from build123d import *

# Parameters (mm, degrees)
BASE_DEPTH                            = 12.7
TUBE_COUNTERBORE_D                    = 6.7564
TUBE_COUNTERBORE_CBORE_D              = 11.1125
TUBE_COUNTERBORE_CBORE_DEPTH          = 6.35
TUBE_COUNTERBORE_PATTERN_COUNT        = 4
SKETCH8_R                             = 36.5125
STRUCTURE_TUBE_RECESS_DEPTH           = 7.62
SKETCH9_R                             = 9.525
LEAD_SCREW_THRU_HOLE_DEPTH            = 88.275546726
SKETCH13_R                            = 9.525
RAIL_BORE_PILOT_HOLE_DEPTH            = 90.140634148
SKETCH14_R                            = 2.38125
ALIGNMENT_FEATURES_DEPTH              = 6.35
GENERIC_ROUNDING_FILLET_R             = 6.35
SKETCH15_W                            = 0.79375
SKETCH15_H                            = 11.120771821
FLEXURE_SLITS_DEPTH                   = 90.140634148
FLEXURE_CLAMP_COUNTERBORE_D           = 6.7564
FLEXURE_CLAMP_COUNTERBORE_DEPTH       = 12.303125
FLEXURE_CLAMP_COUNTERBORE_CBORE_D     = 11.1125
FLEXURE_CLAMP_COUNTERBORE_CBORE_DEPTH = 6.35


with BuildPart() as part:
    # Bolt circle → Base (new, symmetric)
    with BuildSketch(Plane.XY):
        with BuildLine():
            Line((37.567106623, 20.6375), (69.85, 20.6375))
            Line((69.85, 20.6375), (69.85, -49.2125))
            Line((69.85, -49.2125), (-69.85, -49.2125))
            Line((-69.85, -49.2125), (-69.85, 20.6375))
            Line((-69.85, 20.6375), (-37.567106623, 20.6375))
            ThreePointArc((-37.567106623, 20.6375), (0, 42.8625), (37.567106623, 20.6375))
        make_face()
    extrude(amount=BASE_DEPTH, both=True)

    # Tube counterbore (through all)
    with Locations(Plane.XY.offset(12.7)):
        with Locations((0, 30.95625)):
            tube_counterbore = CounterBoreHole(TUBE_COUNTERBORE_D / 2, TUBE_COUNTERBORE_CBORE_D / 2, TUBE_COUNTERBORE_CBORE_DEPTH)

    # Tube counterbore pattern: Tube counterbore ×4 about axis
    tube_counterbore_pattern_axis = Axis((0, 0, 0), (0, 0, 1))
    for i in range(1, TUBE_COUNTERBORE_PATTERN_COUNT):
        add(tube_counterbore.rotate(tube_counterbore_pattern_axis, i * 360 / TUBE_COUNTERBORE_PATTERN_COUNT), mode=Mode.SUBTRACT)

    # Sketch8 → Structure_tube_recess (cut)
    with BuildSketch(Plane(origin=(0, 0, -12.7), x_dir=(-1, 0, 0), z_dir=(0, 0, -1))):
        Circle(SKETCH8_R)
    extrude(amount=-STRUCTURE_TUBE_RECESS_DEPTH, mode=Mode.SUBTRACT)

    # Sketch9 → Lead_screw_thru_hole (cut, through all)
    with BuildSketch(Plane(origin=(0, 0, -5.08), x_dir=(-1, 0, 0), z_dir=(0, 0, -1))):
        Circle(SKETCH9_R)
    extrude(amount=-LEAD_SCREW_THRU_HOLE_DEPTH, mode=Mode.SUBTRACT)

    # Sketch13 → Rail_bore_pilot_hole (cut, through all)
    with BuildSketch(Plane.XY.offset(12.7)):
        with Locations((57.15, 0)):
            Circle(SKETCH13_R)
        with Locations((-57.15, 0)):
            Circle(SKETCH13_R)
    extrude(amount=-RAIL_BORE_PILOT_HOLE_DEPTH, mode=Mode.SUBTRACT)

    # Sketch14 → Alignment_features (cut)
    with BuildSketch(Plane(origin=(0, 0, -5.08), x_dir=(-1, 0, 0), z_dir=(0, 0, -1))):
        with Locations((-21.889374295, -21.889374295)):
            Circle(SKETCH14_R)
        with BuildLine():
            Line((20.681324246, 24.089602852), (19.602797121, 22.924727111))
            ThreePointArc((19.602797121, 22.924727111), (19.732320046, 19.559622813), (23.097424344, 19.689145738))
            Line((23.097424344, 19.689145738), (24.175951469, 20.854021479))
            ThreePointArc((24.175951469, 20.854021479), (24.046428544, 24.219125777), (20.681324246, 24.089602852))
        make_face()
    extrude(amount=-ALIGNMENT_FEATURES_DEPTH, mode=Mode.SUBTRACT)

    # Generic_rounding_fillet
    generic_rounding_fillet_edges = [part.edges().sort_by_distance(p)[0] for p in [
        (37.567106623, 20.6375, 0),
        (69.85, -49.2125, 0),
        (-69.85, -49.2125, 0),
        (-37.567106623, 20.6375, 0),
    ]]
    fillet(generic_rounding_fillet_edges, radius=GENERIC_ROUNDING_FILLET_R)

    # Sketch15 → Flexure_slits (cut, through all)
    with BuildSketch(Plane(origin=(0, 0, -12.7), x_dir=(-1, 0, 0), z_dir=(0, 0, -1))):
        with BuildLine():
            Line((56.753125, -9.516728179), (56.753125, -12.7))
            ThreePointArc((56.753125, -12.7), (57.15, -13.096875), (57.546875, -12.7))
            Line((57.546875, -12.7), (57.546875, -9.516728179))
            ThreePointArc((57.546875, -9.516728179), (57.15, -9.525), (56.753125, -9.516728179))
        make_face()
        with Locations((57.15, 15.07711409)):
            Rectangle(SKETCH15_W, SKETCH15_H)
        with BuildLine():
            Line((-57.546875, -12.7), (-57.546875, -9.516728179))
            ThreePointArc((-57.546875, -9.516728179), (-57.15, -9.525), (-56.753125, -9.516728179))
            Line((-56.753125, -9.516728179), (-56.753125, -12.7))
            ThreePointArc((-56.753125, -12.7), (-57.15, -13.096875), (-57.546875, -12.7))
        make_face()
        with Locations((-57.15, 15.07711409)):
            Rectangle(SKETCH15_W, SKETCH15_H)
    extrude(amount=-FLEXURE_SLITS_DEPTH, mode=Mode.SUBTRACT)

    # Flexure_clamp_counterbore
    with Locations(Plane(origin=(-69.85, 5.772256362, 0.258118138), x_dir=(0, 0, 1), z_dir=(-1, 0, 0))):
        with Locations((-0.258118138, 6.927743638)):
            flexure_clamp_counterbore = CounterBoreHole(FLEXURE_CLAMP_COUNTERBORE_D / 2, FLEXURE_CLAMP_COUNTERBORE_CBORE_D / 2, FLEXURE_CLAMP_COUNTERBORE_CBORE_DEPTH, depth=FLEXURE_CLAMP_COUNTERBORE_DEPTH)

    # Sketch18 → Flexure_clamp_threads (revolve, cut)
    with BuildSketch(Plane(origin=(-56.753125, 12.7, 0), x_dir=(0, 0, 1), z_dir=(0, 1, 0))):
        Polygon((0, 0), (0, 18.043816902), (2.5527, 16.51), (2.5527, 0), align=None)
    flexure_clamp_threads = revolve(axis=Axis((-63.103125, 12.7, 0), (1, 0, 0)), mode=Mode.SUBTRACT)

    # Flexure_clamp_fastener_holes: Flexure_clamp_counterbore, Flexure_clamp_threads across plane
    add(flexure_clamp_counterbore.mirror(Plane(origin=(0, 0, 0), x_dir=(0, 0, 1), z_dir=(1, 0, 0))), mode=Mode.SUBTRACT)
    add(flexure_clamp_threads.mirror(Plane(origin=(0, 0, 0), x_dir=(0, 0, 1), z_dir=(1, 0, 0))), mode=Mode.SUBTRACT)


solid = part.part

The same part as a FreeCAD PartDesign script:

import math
import FreeCAD as App
import Part
import Sketcher
Q = App.Units.Quantity


def edges_at(feature, points):
    """Names of the edges that pass closest to the given points."""
    edges = feature.Shape.Edges
    near = lambda p: min(range(len(edges)), key=lambda i: edges[i].distToShape(Part.Vertex(*p))[0])
    return sorted({f"Edge{near(p) + 1}" for p in points})

doc = App.newDocument("Part")
params = doc.addObject("Spreadsheet::Sheet", "Params")
for row, (alias, value) in enumerate([
    ("sketch1_width", "5.5 in"),
    ("sketch1_radius", "1.6875 in"),
    ("sketch1_height", "2.75 in"),
    ("pad1_length", "1 in"),
    ("sketch2_diameter", "0.266 in"),
    ("hole_diameter", "0.266 in"),
    ("hole_cbore_diameter", "0.4375 in"),
    ("hole_cbore_depth", "0.25 in"),
    ("sketch3_diameter", "2.875 in"),
    ("pocket1_length", "0.3 in"),
    ("sketch4_diameter", "0.75 in"),
    ("sketch5_diameter", "0.75 in"),
    ("sketch6_diameter", "0.1875 in"),
    ("sketch6_length", "0.0625 in"),
    ("pocket4_length", "0.25 in"),
    ("fillet_radius", "0.25 in"),
    ("sketch7_radius", "0.015625 in"),
    ("sketch7_radius2", "0.375 in"),
    ("sketch8_diameter", "0.266 in"),
    ("hole2_diameter", "0.266 in"),
    ("hole2_depth", "0.484375 in"),
    ("hole2_cbore_diameter", "0.4375 in"),
    ("hole2_cbore_depth", "0.25 in"),
    ("sketch9_width", "0.65 in"),
    ("groove_angle", "360 deg"),
], start=1):
    params.set(f"A{row}", alias)
    params.set(f"B{row}", "=" + value)
    params.setAlias(f"B{row}", alias)

body = doc.addObject("PartDesign::Body", "Body")

# Sketch on XY plane
sketch1 = body.newObject("Sketcher::SketchObject", "Sketch")
sketch1.AttachmentSupport = (doc.getObject("XY_Plane"), [""])
sketch1.MapMode = "FlatFace"
sketch1.addGeometry([
    Part.LineSegment(App.Vector(70, 21, 0), App.Vector(38, 21, 0)),  # 0
    Part.ArcOfCircle(Part.Circle(App.Vector(0, 0, 0), App.Vector(0, 0, 1), 43), math.radians(29), math.radians(151)),  # 1
    Part.LineSegment(App.Vector(-38, 21, 0), App.Vector(-70, 21, 0)),  # 2
    Part.LineSegment(App.Vector(-70, 21, 0), App.Vector(-70, -49, 0)),  # 3
    Part.LineSegment(App.Vector(-70, -49, 0), App.Vector(70, -49, 0)),  # 4
    Part.LineSegment(App.Vector(70, -49, 0), App.Vector(70, 21, 0)),  # 5
], False)
sketch1.addConstraint([
    Sketcher.Constraint("Coincident", 0, 2, 1, 1),
    Sketcher.Constraint("Coincident", 1, 2, 2, 1),
    Sketcher.Constraint("Coincident", 2, 2, 3, 1),
    Sketcher.Constraint("Coincident", 3, 2, 4, 1),
    Sketcher.Constraint("Coincident", 4, 2, 5, 1),
    Sketcher.Constraint("Coincident", 5, 2, 0, 1),
    Sketcher.Constraint("Horizontal", 0),
    Sketcher.Constraint("Horizontal", 2),
    Sketcher.Constraint("Vertical", 3),
    Sketcher.Constraint("Horizontal", 4),
    Sketcher.Constraint("Vertical", 5),
    Sketcher.Constraint("Coincident", 1, 3, -1, 1),
    Sketcher.Constraint("Symmetric", 2, 2, 5, 2, -2),
    Sketcher.Constraint("DistanceX", 4, 1, 4, 2, Q("5.5 in")),
    Sketcher.Constraint("Radius", 1, Q("1.6875 in")),
    Sketcher.Constraint("DistanceY", 3, 2, 3, 1, Q("2.75 in")),
    Sketcher.Constraint("DistanceY", -1, 1, 0, 2, Q("0.8125 in")),
])
sketch1.setExpression("Constraints[13]", "Params.sketch1_width")
sketch1.setExpression("Constraints[14]", "Params.sketch1_radius")
sketch1.setExpression("Constraints[15]", "Params.sketch1_height")
pad1 = body.newObject("PartDesign::Pad", "Pad")
pad1.Profile = sketch1
pad1.setExpression("Length", "Params.pad1_length")
pad1.Midplane = True

# Sketch on XY plane
sketch2 = body.newObject("Sketcher::SketchObject", "Sketch001")
sketch2.AttachmentSupport = (doc.getObject("XY_Plane"), [""])
sketch2.MapMode = "FlatFace"
sketch2.AttachmentOffset = App.Placement(App.Vector(0, 0, 0.5 * 25.4), App.Rotation())
sketch2.addGeometry(Part.Circle(App.Vector(0, 31, 0), App.Vector(0, 0, 1), 3.4), False)
sketch2.addConstraint([
    Sketcher.Constraint("PointOnObject", 0, 3, -2),
    Sketcher.Constraint("Diameter", 0, Q("0.266 in")),
    Sketcher.Constraint("DistanceY", -1, 1, 0, 3, Q("1.21875 in")),
])
sketch2.setExpression("Constraints[1]", "Params.sketch2_diameter")
doc.recompute()
hole = body.newObject("PartDesign::Hole", "Hole")
hole.Profile = sketch2
hole.ThreadType = "None"
hole.setExpression("Diameter", "Params.hole_diameter")
hole.DepthType = "ThroughAll"
hole.HoleCutType = "Counterbore"
hole.setExpression("HoleCutDiameter", "Params.hole_cbore_diameter")
hole.setExpression("HoleCutDepth", "Params.hole_cbore_depth")
doc.recompute()

polarpattern = body.newObject("PartDesign::PolarPattern", "PolarPattern")
polarpattern.Originals = [hole]
polarpattern.Axis = (doc.getObject("Z_Axis"), [""])
polarpattern.Angle = 360
polarpattern.Occurrences = 4
body.Tip = polarpattern

# Sketch on XY plane
sketch3 = body.newObject("Sketcher::SketchObject", "Sketch002")
sketch3.AttachmentSupport = (doc.getObject("XY_Plane"), [""])
sketch3.MapMode = "FlatFace"
sketch3.AttachmentOffset = App.Placement(App.Vector(0, 0, -0.5 * 25.4), App.Rotation())
sketch3.addGeometry(Part.Circle(App.Vector(0, 0, 0), App.Vector(0, 0, 1), 37), False)
sketch3.addConstraint([
    Sketcher.Constraint("Coincident", 0, 3, -1, 1),
    Sketcher.Constraint("Diameter", 0, Q("2.875 in")),
])
sketch3.setExpression("Constraints[1]", "Params.sketch3_diameter")
pocket1 = body.newObject("PartDesign::Pocket", "Pocket")
pocket1.Profile = sketch3
pocket1.setExpression("Length", "Params.pocket1_length")
pocket1.Reversed = True

# Sketch on XY plane
sketch4 = body.newObject("Sketcher::SketchObject", "Sketch003")
sketch4.AttachmentSupport = (doc.getObject("XY_Plane"), [""])
sketch4.MapMode = "FlatFace"
sketch4.AttachmentOffset = App.Placement(App.Vector(0, 0, -0.2 * 25.4), App.Rotation())
sketch4.addGeometry(Part.Circle(App.Vector(0, 0, 0), App.Vector(0, 0, 1), 10), False)
sketch4.addConstraint([
    Sketcher.Constraint("Coincident", 0, 3, -1, 1),
    Sketcher.Constraint("Diameter", 0, Q("0.75 in")),
])
sketch4.setExpression("Constraints[1]", "Params.sketch4_diameter")
pocket2 = body.newObject("PartDesign::Pocket", "Pocket001")
pocket2.Profile = sketch4
pocket2.Type = "ThroughAll"
pocket2.Reversed = True

# Sketch on XY plane
sketch5 = body.newObject("Sketcher::SketchObject", "Sketch004")
sketch5.AttachmentSupport = (doc.getObject("XY_Plane"), [""])
sketch5.MapMode = "FlatFace"
sketch5.AttachmentOffset = App.Placement(App.Vector(0, 0, 0.5 * 25.4), App.Rotation())
sketch5.addGeometry([
    Part.Circle(App.Vector(57, 0, 0), App.Vector(0, 0, 1), 10),
    Part.Circle(App.Vector(-57, 0, 0), App.Vector(0, 0, 1), 10),
], False)
sketch5.addConstraint([
    Sketcher.Constraint("Equal", 0, 1),
    Sketcher.Constraint("Symmetric", 0, 3, 1, 3, -1, 1),
    Sketcher.Constraint("PointOnObject", 0, 3, -1),
    Sketcher.Constraint("Diameter", 0, Q("0.75 in")),
    Sketcher.Constraint("DistanceX", 1, 3, 0, 3, Q("4.5 in")),
])
sketch5.setExpression("Constraints[3]", "Params.sketch5_diameter")
pocket3 = body.newObject("PartDesign::Pocket", "Pocket002")
pocket3.Profile = sketch5
pocket3.Type = "ThroughAll"

# Sketch on XY plane
sketch6 = body.newObject("Sketcher::SketchObject", "Sketch005")
sketch6.AttachmentSupport = (doc.getObject("XY_Plane"), [""])
sketch6.MapMode = "FlatFace"
sketch6.AttachmentOffset = App.Placement(App.Vector(0, 0, -0.2 * 25.4), App.Rotation())
sketch6.addGeometry([
    Part.Circle(App.Vector(21.9, -21.9, 0), App.Vector(0, 0, 1), 2.4),  # 0
    Part.LineSegment(App.Vector(-20.7, 24.1, 0), App.Vector(-19.6, 22.9, 0)),  # 1
    Part.ArcOfCircle(Part.Circle(App.Vector(-21.4, 21.3, 0), App.Vector(0, 0, 1), 2.4), math.radians(-137), math.radians(43)),  # 2
    Part.LineSegment(App.Vector(-23.1, 19.7, 0), App.Vector(-24.2, 20.9, 0)),  # 3
    Part.ArcOfCircle(Part.Circle(App.Vector(-22.4, 22.5, 0), App.Vector(0, 0, 1), 2.4), math.radians(43), math.radians(223)),  # 4
], False)
sketch6.addConstraint([
    Sketcher.Constraint("Tangent", 1, 2, 2, 2),
    Sketcher.Constraint("Tangent", 2, 1, 3, 1),
    Sketcher.Constraint("Tangent", 3, 2, 4, 2),
    Sketcher.Constraint("Tangent", 4, 1, 1, 1),
    Sketcher.Constraint("Equal", 0, 2),
    Sketcher.Constraint("Equal", 2, 4),
    Sketcher.Constraint("Diameter", 0, Q("0.1875 in")),
    Sketcher.Constraint("Distance", 1, Q("0.0625 in")),
    Sketcher.Constraint("DistanceY", 0, 3, 1, 2, 44.814101),
    Sketcher.Constraint("DistanceX", 2, 1, 0, 3, 44.986799),
    Sketcher.Constraint("DistanceX", 2, 1, 4, 1, 2.4161),
    Sketcher.Constraint("DistanceX", 2, 3, -1, 1, 21.350111),
    Sketcher.Constraint("DistanceY", -1, 1, 3, 2, 20.854021),
])
sketch6.setExpression("Constraints[6]", "Params.sketch6_diameter")
sketch6.setExpression("Constraints[7]", "Params.sketch6_length")
pocket4 = body.newObject("PartDesign::Pocket", "Pocket003")
pocket4.Profile = sketch6
pocket4.setExpression("Length", "Params.pocket4_length")
pocket4.Reversed = True
doc.recompute()

fillet = body.newObject("PartDesign::Fillet", "Fillet")
fillet.Base = (pocket4, edges_at(pocket4, [
    (37.567, 20.637, 0),
    (69.85, -49.212, 0),
    (-69.85, -49.212, 0),
    (-37.567, 20.637, 0),
]))
fillet.setExpression("Radius", "Params.fillet_radius")

# Sketch on XY plane
sketch7 = body.newObject("Sketcher::SketchObject", "Sketch006")
sketch7.AttachmentSupport = (doc.getObject("XY_Plane"), [""])
sketch7.MapMode = "FlatFace"
sketch7.AttachmentOffset = App.Placement(App.Vector(0, 0, -0.5 * 25.4), App.Rotation())
sketch7.addGeometry([
    Part.LineSegment(App.Vector(-56.75, -9.52, 0), App.Vector(-56.75, -12.7, 0)),  # 0
    Part.ArcOfCircle(Part.Circle(App.Vector(-57.15, -12.7, 0), App.Vector(0, 0, 1), 0.4), math.radians(180), math.radians(360)),  # 1
    Part.LineSegment(App.Vector(-57.55, -12.7, 0), App.Vector(-57.55, -9.52, 0)),  # 2
    Part.ArcOfCircle(Part.Circle(App.Vector(-57.15, 0, 0), App.Vector(0, 0, 1), 9.52), math.radians(-92.39), math.radians(-87.61)),  # 3
    Part.LineSegment(App.Vector(-56.75, 20.64, 0), App.Vector(-56.75, 9.52, 0)),  # 4
    Part.LineSegment(App.Vector(-56.75, 9.52, 0), App.Vector(-57.55, 9.52, 0)),  # 5
    Part.LineSegment(App.Vector(-57.55, 9.52, 0), App.Vector(-57.55, 20.64, 0)),  # 6
    Part.LineSegment(App.Vector(-57.55, 20.64, 0), App.Vector(-56.75, 20.64, 0)),  # 7
    Part.LineSegment(App.Vector(57.55, -9.52, 0), App.Vector(57.55, -12.7, 0)),  # 8
    Part.ArcOfCircle(Part.Circle(App.Vector(57.15, -12.7, 0), App.Vector(0, 0, 1), 0.4), math.radians(180), math.radians(360)),  # 9
    Part.LineSegment(App.Vector(56.75, -12.7, 0), App.Vector(56.75, -9.52, 0)),  # 10
    Part.ArcOfCircle(Part.Circle(App.Vector(57.15, 0, 0), App.Vector(0, 0, 1), 9.52), math.radians(-92.39), math.radians(-87.61)),  # 11
    Part.LineSegment(App.Vector(57.55, 20.64, 0), App.Vector(57.55, 9.52, 0)),  # 12
    Part.LineSegment(App.Vector(57.55, 9.52, 0), App.Vector(56.75, 9.52, 0)),  # 13
    Part.LineSegment(App.Vector(56.75, 9.52, 0), App.Vector(56.75, 20.64, 0)),  # 14
    Part.LineSegment(App.Vector(56.75, 20.64, 0), App.Vector(57.55, 20.64, 0)),  # 15
], False)
sketch7.addConstraint([
    Sketcher.Constraint("Tangent", 0, 2, 1, 2),
    Sketcher.Constraint("Tangent", 1, 1, 2, 1),
    Sketcher.Constraint("Coincident", 2, 2, 3, 1),
    Sketcher.Constraint("Coincident", 3, 2, 0, 1),
    Sketcher.Constraint("Coincident", 4, 2, 5, 1),
    Sketcher.Constraint("Coincident", 5, 2, 6, 1),
    Sketcher.Constraint("Coincident", 6, 2, 7, 1),
    Sketcher.Constraint("Coincident", 7, 2, 4, 1),
    Sketcher.Constraint("Tangent", 8, 2, 9, 2),
    Sketcher.Constraint("Tangent", 9, 1, 10, 1),
    Sketcher.Constraint("Coincident", 10, 2, 11, 1),
    Sketcher.Constraint("Coincident", 11, 2, 8, 1),
    Sketcher.Constraint("Coincident", 12, 2, 13, 1),
    Sketcher.Constraint("Coincident", 13, 2, 14, 1),
    Sketcher.Constraint("Coincident", 14, 2, 15, 1),
    Sketcher.Constraint("Coincident", 15, 2, 12, 1),
    Sketcher.Constraint("Vertical", 0),
    Sketcher.Constraint("Vertical", 2),
    Sketcher.Constraint("Vertical", 4),
    Sketcher.Constraint("Horizontal", 5),
    Sketcher.Constraint("Vertical", 6),
    Sketcher.Constraint("Horizontal", 7),
    Sketcher.Constraint("Vertical", 8),
    Sketcher.Constraint("Vertical", 10),
    Sketcher.Constraint("Vertical", 12),
    Sketcher.Constraint("Horizontal", 13),
    Sketcher.Constraint("Vertical", 14),
    Sketcher.Constraint("Horizontal", 15),
    Sketcher.Constraint("Equal", 1, 9),
    Sketcher.Constraint("Equal", 3, 11),
    Sketcher.Constraint("Symmetric", 3, 3, 11, 3, -1, 1),
    Sketcher.Constraint("Symmetric", 4, 2, 10, 2, -1, 1),
    Sketcher.Constraint("Symmetric", 5, 2, 11, 2, -1, 1),
    Sketcher.Constraint("Symmetric", 2, 2, 12, 2, -1, 1),
    Sketcher.Constraint("Symmetric", 3, 2, 13, 2, -1, 1),
    Sketcher.Constraint("PointOnObject", 3, 3, -1),
    Sketcher.Constraint("Horizontal", 1, 3, 9, 3),
    Sketcher.Constraint("Horizontal", 7, 2, 14, 2),
    Sketcher.Constraint("Radius", 1, Q("0.015625 in")),
    Sketcher.Constraint("Radius", 3, Q("0.375 in")),
    Sketcher.Constraint("DistanceY", 1, 3, -1, 1, Q("0.5 in")),
    Sketcher.Constraint("DistanceX", 1, 3, 9, 3, Q("4.5 in")),
    Sketcher.Constraint("DistanceY", -1, 1, 6, 2, Q("0.8125 in")),
])
sketch7.setExpression("Constraints[38]", "Params.sketch7_radius")
sketch7.setExpression("Constraints[39]", "Params.sketch7_radius2")
pocket5 = body.newObject("PartDesign::Pocket", "Pocket004")
pocket5.Profile = sketch7
pocket5.Type = "ThroughAll"
pocket5.Reversed = True

# Sketch on YZ plane
sketch8 = body.newObject("Sketcher::SketchObject", "Sketch007")
sketch8.AttachmentSupport = (doc.getObject("YZ_Plane"), [""])
sketch8.MapMode = "FlatFace"
sketch8.AttachmentOffset = App.Placement(App.Vector(0, 0, -2.75 * 25.4), App.Rotation())
sketch8.addGeometry(Part.Circle(App.Vector(12.7, 0, 0), App.Vector(0, 0, 1), 3.4), False)
sketch8.addConstraint([
    Sketcher.Constraint("PointOnObject", 0, 3, -1),
    Sketcher.Constraint("Diameter", 0, Q("0.266 in")),
    Sketcher.Constraint("DistanceX", -1, 1, 0, 3, Q("0.5 in")),
])
sketch8.setExpression("Constraints[1]", "Params.sketch8_diameter")
doc.recompute()
hole2 = body.newObject("PartDesign::Hole", "Hole001")
hole2.Profile = sketch8
hole2.ThreadType = "None"
hole2.setExpression("Diameter", "Params.hole2_diameter")
hole2.DepthType = "Dimension"
hole2.setExpression("Depth", "Params.hole2_depth")
hole2.DrillPoint = "Flat"
hole2.HoleCutType = "Counterbore"
hole2.setExpression("HoleCutDiameter", "Params.hole2_cbore_diameter")
hole2.setExpression("HoleCutDepth", "Params.hole2_cbore_depth")
hole2.Reversed = True

# Sketch on XZ plane
sketch9 = body.newObject("Sketcher::SketchObject", "Sketch008")
sketch9.AttachmentSupport = (doc.getObject("XZ_Plane"), [""])
sketch9.MapMode = "FlatFace"
sketch9.AttachmentOffset = App.Placement(App.Vector(0, 0, -0.5 * 25.4), App.Rotation())
sketch9.addGeometry([
    Part.LineSegment(App.Vector(-38.7, 0, 0), App.Vector(-56.8, 0, 0)),
    Part.LineSegment(App.Vector(-56.8, 0, 0), App.Vector(-56.8, 2.6, 0)),
    Part.LineSegment(App.Vector(-56.8, 2.6, 0), App.Vector(-40.2, 2.6, 0)),
    Part.LineSegment(App.Vector(-40.2, 2.6, 0), App.Vector(-38.7, 0, 0)),
], False)
sketch9.addConstraint([
    Sketcher.Constraint("Coincident", 0, 2, 1, 1),
    Sketcher.Constraint("Coincident", 1, 2, 2, 1),
    Sketcher.Constraint("Coincident", 2, 2, 3, 1),
    Sketcher.Constraint("Coincident", 3, 2, 0, 1),
    Sketcher.Constraint("Horizontal", 0),
    Sketcher.Constraint("Vertical", 1),
    Sketcher.Constraint("Horizontal", 2),
    Sketcher.Constraint("PointOnObject", 0, 2, -1),
    Sketcher.Constraint("Angle", 3, Q("-59 deg")),
    Sketcher.Constraint("DistanceX", 2, 1, 2, 2, Q("0.65 in")),
    Sketcher.Constraint("DistanceY", 1, 1, 1, 2, Q("0.1005 in")),
    Sketcher.Constraint("DistanceX", 0, 2, -1, 1, Q("2.234375 in")),
])
sketch9.setExpression("Constraints[9]", "Params.sketch9_width")
groove = body.newObject("PartDesign::Groove", "Groove")
groove.Profile = sketch9
groove.ReferenceAxis = (sketch9, ["H_Axis"])
groove.setExpression("Angle", "Params.groove_angle")
doc.recompute()

mirrored = body.newObject("PartDesign::Mirrored", "Mirrored")
mirrored.Originals = [hole2, groove]
mirrored.MirrorPlane = (doc.getObject("YZ_Plane"), [""])
body.Tip = mirrored

doc.recompute()
